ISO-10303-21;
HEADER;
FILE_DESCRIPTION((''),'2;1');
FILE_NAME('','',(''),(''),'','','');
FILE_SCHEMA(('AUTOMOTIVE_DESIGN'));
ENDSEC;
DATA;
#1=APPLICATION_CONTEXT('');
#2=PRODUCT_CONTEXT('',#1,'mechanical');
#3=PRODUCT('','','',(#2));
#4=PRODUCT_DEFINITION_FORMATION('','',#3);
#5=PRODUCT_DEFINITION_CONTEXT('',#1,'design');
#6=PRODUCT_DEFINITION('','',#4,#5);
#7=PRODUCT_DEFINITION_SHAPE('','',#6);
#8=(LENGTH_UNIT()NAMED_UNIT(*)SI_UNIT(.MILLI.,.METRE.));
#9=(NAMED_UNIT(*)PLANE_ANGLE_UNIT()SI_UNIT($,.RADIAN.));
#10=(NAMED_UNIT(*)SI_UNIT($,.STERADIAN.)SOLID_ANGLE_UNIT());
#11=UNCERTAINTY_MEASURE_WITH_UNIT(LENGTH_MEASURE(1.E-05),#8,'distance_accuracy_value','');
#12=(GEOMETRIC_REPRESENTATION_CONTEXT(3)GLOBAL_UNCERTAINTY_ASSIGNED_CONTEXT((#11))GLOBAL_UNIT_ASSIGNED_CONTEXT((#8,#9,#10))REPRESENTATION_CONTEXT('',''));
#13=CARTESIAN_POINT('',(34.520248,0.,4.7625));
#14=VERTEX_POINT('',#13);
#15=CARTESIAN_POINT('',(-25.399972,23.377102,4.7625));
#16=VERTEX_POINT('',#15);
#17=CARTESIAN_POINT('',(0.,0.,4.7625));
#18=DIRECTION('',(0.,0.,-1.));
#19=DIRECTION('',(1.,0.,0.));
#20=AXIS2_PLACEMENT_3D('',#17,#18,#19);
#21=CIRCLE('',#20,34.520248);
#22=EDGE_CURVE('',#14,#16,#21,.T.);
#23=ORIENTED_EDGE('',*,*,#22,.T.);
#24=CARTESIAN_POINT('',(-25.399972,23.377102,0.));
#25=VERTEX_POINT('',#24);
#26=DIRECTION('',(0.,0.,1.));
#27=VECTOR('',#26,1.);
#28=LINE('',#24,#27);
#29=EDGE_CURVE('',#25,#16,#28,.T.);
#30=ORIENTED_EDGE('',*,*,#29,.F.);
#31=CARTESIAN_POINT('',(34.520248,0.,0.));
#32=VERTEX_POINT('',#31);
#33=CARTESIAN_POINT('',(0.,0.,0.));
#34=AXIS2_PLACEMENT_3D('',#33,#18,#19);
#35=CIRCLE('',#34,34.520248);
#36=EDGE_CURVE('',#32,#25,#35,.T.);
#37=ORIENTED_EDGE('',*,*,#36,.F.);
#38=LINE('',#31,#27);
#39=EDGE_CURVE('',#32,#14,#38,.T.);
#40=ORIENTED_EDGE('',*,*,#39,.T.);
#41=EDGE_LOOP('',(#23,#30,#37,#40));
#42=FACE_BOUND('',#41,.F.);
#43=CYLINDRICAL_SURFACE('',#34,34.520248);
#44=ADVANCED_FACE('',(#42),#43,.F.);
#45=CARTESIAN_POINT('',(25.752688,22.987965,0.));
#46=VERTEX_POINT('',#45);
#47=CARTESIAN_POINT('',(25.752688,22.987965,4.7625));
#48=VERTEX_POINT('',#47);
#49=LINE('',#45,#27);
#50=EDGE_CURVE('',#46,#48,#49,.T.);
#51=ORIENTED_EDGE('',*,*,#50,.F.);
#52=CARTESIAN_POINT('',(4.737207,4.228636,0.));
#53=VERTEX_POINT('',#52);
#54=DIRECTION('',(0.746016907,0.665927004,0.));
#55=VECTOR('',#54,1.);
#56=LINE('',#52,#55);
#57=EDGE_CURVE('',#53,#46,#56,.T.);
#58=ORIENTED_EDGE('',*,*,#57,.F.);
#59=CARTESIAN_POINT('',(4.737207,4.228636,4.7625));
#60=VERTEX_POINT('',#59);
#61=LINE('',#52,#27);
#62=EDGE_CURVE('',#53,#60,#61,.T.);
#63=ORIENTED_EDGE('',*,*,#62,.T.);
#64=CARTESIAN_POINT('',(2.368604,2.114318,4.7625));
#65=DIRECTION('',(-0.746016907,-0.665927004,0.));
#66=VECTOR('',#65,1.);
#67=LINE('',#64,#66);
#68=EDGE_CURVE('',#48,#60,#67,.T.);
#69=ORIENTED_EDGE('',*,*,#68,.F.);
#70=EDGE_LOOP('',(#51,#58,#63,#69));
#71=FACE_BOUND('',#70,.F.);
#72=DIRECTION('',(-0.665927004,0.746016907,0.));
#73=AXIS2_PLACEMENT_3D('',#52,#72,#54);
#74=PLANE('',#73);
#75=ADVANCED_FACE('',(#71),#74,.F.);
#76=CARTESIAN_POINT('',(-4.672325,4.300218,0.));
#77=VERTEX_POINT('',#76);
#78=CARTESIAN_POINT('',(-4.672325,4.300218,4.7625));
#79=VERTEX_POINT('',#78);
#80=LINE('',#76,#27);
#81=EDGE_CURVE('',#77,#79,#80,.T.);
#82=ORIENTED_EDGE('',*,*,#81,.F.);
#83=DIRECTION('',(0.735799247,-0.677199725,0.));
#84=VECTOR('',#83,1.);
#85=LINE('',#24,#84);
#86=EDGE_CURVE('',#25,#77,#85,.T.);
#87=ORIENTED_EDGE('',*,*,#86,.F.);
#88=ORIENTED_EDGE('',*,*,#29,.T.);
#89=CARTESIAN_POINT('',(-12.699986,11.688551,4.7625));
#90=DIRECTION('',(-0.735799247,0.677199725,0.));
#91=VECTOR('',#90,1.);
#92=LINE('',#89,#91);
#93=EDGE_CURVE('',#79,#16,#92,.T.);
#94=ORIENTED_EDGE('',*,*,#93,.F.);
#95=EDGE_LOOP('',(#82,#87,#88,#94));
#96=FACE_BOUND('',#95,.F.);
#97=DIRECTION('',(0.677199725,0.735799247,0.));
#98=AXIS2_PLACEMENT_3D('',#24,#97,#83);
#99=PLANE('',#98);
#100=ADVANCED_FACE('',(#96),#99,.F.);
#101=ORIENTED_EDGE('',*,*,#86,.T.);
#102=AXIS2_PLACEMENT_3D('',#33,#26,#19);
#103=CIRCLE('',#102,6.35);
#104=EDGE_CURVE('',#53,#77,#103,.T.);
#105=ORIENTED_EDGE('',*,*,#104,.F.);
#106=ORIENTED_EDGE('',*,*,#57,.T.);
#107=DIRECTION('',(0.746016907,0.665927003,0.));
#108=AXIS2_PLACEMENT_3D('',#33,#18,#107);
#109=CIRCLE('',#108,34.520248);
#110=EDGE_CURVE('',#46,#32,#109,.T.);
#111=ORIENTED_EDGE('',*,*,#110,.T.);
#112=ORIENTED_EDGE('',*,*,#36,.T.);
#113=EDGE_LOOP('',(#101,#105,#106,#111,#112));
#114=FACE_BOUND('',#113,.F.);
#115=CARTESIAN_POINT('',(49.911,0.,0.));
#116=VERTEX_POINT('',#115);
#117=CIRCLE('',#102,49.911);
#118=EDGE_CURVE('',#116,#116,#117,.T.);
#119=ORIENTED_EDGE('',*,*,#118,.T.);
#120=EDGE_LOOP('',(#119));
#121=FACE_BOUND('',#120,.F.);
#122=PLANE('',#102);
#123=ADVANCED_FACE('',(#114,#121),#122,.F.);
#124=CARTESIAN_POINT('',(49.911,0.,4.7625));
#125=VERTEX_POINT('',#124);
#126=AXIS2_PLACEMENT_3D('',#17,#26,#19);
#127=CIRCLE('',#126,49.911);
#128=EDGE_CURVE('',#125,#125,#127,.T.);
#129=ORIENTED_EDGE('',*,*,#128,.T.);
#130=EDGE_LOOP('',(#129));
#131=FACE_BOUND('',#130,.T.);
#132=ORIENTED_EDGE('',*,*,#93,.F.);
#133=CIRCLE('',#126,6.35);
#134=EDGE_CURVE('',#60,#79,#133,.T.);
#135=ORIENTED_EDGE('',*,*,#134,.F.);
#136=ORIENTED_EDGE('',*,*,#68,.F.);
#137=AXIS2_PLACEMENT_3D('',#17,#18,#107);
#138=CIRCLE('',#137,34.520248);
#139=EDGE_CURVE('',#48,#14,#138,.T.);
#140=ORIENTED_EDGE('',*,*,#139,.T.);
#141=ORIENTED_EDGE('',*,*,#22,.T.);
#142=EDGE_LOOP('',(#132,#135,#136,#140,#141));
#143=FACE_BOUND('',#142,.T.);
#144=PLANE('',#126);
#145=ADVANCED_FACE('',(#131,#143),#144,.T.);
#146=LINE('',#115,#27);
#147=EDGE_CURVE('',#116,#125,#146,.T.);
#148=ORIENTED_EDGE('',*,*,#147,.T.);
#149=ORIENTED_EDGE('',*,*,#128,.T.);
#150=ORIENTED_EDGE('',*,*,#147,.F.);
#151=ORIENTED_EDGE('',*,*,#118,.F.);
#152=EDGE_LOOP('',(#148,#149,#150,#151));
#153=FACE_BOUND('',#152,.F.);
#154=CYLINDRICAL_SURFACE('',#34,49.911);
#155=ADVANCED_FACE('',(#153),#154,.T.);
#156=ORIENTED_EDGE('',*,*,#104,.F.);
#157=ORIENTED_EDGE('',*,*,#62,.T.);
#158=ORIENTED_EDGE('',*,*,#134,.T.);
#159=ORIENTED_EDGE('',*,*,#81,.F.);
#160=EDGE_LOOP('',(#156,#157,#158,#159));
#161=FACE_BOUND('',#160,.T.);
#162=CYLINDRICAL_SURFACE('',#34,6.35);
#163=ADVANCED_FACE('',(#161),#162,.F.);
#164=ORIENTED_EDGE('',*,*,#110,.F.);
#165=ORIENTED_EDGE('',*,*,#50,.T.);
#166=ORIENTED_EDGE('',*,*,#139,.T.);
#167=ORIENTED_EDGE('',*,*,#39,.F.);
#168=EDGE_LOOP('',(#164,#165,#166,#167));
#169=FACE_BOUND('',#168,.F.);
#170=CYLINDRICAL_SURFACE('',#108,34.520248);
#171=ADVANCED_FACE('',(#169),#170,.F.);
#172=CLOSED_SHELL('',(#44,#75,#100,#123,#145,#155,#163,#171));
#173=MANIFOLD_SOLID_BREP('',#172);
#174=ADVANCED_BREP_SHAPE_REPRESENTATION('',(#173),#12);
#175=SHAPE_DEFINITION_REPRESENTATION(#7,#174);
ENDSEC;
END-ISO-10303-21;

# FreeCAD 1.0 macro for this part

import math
import FreeCAD as App
import Part
import Sketcher

V = App.Vector
Q = App.Units.Quantity

doc = App.newDocument("Part")
body = doc.addObject("PartDesign::Body", "Body")

sketch1 = body.newObject("Sketcher::SketchObject", "Sketch")
sketch1.AttachmentSupport = (doc.getObject("XY_Plane"), [""])
sketch1.MapMode = "FlatFace"
sketch1.addGeometry(Part.Circle(V(0, 0, 0), V(0, 0, 1), 50), False)
sketch1.addGeometry(Part.Circle(V(0, 0, 0), V(0, 0, 1), 6), False)
sketch1.addConstraint(Sketcher.Constraint("Coincident", 0, 3, -1, 1))
sketch1.addConstraint(Sketcher.Constraint("Coincident", 1, 3, -1, 1))
sketch1.addConstraint(Sketcher.Constraint("Diameter", 1, Q("0.5 in")))
sketch1.addConstraint(Sketcher.Constraint("Diameter", 0, Q("3.93 in")))
pad1 = body.newObject("PartDesign::Pad", "Pad")
pad1.Profile = sketch1
pad1.Length = Q("0.1875 in")

sketch2 = body.newObject("Sketcher::SketchObject", "Sketch001")
sketch2.AttachmentSupport = (doc.getObject("XY_Plane"), [""])
sketch2.MapMode = "FlatFace"
sketch2.addGeometry(Part.ArcOfCircle(Part.Circle(V(0, 0, 0), V(0, 0, 1), 34.5), math.radians(0), math.radians(42)), False)
sketch2.addGeometry(Part.ArcOfCircle(Part.Circle(V(0, 0, 0), V(0, 0, 1), 34.5), math.radians(137), math.radians(360)), False)
sketch2.addGeometry(Part.LineSegment(V(-25.4, 23.4, 0), V(-4.7, 4.3, 0)), False)
sketch2.addGeometry(Part.ArcOfCircle(Part.Circle(V(0, 0, 0), V(0, 0, 1), 6.3), math.radians(137), math.radians(360)), False)
sketch2.addGeometry(Part.ArcOfCircle(Part.Circle(V(0, 0, 0), V(0, 0, 1), 6.3), math.radians(0), math.radians(42)), False)
sketch2.addGeometry(Part.LineSegment(V(4.7, 4.2, 0), V(25.8, 23, 0)), False)
sketch2.addConstraint(Sketcher.Constraint("Tangent", 0, 1, 1, 2))
sketch2.addConstraint(Sketcher.Constraint("Coincident", 1, 1, 2, 1))
sketch2.addConstraint(Sketcher.Constraint("Coincident", 2, 2, 3, 1))
sketch2.addConstraint(Sketcher.Constraint("Tangent", 3, 2, 4, 1))
sketch2.addConstraint(Sketcher.Constraint("Coincident", 4, 2, 5, 1))
sketch2.addConstraint(Sketcher.Constraint("Coincident", 5, 2, 0, 2))
sketch2.addConstraint(Sketcher.Constraint("Coincident", 0, 3, -1, 1))
sketch2.addConstraint(Sketcher.Constraint("Coincident", 3, 3, -1, 1))
sketch2.addConstraint(Sketcher.Constraint("Equal", 0, 1))
sketch2.addConstraint(Sketcher.Constraint("Equal", 3, 4))
sketch2.addConstraint(Sketcher.Constraint("PointOnObject", 0, 1, -1))
sketch2.addConstraint(Sketcher.Constraint("PointOnObject", 3, 2, -1))
sketch2.addConstraint(Sketcher.Constraint("Radius", 3, Q("0.25 in")))
sketch2.addConstraint(Sketcher.Constraint("DistanceY", -1, 1, 2, 2, Q("0.1692999 in")))
sketch2.addConstraint(Sketcher.Constraint("Radius", 0, Q("34.520248 mm")))
sketch2.addConstraint(Sketcher.Constraint("DistanceX", -1, 1, 5, 2, Q("25.752688 mm")))
sketch2.addConstraint(Sketcher.Constraint("DistanceX", 1, 1, 0, 1, Q("59.92022 mm")))
sketch2.addConstraint(Sketcher.Constraint("DistanceX", 4, 2, 5, 2, Q("21.015481 mm")))
pocket1 = body.newObject("PartDesign::Pocket", "Pocket")
pocket1.Profile = sketch2
pocket1.Length = Q("0.36 in")
pocket1.Reversed = True

doc.recompute()
